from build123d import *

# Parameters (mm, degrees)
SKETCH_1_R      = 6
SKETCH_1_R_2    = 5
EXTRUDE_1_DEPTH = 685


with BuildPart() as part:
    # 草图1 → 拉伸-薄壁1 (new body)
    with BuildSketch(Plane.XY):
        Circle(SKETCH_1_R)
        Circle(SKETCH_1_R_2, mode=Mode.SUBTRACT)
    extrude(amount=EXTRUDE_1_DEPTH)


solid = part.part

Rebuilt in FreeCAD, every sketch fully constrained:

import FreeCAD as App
import Part
import Sketcher

V = App.Vector
Q = App.Units.Quantity

doc = App.newDocument("Part")
body = doc.addObject("PartDesign::Body", "Body")

sketch1 = body.newObject("Sketcher::SketchObject", "Sketch")
sketch1.AttachmentSupport = (doc.getObject("XY_Plane"), [""])
sketch1.MapMode = "FlatFace"
sketch1.addGeometry([
    Part.Circle(V(0, 0, 0), V(0, 0, 1), 6),
    Part.Circle(V(0, 0, 0), V(0, 0, 1), 5),
], False)
sketch1.addConstraint([
    Sketcher.Constraint("Coincident", 0, 3, -1, 1),
    Sketcher.Constraint("Coincident", 1, 3, -1, 1),
    Sketcher.Constraint("Diameter", 0, Q("12 mm")),
    Sketcher.Constraint("Diameter", 1, Q("10 mm")),
])
pad1 = body.newObject("PartDesign::Pad", "Pad")
pad1.Profile = sketch1
pad1.Length = 685

doc.recompute()
